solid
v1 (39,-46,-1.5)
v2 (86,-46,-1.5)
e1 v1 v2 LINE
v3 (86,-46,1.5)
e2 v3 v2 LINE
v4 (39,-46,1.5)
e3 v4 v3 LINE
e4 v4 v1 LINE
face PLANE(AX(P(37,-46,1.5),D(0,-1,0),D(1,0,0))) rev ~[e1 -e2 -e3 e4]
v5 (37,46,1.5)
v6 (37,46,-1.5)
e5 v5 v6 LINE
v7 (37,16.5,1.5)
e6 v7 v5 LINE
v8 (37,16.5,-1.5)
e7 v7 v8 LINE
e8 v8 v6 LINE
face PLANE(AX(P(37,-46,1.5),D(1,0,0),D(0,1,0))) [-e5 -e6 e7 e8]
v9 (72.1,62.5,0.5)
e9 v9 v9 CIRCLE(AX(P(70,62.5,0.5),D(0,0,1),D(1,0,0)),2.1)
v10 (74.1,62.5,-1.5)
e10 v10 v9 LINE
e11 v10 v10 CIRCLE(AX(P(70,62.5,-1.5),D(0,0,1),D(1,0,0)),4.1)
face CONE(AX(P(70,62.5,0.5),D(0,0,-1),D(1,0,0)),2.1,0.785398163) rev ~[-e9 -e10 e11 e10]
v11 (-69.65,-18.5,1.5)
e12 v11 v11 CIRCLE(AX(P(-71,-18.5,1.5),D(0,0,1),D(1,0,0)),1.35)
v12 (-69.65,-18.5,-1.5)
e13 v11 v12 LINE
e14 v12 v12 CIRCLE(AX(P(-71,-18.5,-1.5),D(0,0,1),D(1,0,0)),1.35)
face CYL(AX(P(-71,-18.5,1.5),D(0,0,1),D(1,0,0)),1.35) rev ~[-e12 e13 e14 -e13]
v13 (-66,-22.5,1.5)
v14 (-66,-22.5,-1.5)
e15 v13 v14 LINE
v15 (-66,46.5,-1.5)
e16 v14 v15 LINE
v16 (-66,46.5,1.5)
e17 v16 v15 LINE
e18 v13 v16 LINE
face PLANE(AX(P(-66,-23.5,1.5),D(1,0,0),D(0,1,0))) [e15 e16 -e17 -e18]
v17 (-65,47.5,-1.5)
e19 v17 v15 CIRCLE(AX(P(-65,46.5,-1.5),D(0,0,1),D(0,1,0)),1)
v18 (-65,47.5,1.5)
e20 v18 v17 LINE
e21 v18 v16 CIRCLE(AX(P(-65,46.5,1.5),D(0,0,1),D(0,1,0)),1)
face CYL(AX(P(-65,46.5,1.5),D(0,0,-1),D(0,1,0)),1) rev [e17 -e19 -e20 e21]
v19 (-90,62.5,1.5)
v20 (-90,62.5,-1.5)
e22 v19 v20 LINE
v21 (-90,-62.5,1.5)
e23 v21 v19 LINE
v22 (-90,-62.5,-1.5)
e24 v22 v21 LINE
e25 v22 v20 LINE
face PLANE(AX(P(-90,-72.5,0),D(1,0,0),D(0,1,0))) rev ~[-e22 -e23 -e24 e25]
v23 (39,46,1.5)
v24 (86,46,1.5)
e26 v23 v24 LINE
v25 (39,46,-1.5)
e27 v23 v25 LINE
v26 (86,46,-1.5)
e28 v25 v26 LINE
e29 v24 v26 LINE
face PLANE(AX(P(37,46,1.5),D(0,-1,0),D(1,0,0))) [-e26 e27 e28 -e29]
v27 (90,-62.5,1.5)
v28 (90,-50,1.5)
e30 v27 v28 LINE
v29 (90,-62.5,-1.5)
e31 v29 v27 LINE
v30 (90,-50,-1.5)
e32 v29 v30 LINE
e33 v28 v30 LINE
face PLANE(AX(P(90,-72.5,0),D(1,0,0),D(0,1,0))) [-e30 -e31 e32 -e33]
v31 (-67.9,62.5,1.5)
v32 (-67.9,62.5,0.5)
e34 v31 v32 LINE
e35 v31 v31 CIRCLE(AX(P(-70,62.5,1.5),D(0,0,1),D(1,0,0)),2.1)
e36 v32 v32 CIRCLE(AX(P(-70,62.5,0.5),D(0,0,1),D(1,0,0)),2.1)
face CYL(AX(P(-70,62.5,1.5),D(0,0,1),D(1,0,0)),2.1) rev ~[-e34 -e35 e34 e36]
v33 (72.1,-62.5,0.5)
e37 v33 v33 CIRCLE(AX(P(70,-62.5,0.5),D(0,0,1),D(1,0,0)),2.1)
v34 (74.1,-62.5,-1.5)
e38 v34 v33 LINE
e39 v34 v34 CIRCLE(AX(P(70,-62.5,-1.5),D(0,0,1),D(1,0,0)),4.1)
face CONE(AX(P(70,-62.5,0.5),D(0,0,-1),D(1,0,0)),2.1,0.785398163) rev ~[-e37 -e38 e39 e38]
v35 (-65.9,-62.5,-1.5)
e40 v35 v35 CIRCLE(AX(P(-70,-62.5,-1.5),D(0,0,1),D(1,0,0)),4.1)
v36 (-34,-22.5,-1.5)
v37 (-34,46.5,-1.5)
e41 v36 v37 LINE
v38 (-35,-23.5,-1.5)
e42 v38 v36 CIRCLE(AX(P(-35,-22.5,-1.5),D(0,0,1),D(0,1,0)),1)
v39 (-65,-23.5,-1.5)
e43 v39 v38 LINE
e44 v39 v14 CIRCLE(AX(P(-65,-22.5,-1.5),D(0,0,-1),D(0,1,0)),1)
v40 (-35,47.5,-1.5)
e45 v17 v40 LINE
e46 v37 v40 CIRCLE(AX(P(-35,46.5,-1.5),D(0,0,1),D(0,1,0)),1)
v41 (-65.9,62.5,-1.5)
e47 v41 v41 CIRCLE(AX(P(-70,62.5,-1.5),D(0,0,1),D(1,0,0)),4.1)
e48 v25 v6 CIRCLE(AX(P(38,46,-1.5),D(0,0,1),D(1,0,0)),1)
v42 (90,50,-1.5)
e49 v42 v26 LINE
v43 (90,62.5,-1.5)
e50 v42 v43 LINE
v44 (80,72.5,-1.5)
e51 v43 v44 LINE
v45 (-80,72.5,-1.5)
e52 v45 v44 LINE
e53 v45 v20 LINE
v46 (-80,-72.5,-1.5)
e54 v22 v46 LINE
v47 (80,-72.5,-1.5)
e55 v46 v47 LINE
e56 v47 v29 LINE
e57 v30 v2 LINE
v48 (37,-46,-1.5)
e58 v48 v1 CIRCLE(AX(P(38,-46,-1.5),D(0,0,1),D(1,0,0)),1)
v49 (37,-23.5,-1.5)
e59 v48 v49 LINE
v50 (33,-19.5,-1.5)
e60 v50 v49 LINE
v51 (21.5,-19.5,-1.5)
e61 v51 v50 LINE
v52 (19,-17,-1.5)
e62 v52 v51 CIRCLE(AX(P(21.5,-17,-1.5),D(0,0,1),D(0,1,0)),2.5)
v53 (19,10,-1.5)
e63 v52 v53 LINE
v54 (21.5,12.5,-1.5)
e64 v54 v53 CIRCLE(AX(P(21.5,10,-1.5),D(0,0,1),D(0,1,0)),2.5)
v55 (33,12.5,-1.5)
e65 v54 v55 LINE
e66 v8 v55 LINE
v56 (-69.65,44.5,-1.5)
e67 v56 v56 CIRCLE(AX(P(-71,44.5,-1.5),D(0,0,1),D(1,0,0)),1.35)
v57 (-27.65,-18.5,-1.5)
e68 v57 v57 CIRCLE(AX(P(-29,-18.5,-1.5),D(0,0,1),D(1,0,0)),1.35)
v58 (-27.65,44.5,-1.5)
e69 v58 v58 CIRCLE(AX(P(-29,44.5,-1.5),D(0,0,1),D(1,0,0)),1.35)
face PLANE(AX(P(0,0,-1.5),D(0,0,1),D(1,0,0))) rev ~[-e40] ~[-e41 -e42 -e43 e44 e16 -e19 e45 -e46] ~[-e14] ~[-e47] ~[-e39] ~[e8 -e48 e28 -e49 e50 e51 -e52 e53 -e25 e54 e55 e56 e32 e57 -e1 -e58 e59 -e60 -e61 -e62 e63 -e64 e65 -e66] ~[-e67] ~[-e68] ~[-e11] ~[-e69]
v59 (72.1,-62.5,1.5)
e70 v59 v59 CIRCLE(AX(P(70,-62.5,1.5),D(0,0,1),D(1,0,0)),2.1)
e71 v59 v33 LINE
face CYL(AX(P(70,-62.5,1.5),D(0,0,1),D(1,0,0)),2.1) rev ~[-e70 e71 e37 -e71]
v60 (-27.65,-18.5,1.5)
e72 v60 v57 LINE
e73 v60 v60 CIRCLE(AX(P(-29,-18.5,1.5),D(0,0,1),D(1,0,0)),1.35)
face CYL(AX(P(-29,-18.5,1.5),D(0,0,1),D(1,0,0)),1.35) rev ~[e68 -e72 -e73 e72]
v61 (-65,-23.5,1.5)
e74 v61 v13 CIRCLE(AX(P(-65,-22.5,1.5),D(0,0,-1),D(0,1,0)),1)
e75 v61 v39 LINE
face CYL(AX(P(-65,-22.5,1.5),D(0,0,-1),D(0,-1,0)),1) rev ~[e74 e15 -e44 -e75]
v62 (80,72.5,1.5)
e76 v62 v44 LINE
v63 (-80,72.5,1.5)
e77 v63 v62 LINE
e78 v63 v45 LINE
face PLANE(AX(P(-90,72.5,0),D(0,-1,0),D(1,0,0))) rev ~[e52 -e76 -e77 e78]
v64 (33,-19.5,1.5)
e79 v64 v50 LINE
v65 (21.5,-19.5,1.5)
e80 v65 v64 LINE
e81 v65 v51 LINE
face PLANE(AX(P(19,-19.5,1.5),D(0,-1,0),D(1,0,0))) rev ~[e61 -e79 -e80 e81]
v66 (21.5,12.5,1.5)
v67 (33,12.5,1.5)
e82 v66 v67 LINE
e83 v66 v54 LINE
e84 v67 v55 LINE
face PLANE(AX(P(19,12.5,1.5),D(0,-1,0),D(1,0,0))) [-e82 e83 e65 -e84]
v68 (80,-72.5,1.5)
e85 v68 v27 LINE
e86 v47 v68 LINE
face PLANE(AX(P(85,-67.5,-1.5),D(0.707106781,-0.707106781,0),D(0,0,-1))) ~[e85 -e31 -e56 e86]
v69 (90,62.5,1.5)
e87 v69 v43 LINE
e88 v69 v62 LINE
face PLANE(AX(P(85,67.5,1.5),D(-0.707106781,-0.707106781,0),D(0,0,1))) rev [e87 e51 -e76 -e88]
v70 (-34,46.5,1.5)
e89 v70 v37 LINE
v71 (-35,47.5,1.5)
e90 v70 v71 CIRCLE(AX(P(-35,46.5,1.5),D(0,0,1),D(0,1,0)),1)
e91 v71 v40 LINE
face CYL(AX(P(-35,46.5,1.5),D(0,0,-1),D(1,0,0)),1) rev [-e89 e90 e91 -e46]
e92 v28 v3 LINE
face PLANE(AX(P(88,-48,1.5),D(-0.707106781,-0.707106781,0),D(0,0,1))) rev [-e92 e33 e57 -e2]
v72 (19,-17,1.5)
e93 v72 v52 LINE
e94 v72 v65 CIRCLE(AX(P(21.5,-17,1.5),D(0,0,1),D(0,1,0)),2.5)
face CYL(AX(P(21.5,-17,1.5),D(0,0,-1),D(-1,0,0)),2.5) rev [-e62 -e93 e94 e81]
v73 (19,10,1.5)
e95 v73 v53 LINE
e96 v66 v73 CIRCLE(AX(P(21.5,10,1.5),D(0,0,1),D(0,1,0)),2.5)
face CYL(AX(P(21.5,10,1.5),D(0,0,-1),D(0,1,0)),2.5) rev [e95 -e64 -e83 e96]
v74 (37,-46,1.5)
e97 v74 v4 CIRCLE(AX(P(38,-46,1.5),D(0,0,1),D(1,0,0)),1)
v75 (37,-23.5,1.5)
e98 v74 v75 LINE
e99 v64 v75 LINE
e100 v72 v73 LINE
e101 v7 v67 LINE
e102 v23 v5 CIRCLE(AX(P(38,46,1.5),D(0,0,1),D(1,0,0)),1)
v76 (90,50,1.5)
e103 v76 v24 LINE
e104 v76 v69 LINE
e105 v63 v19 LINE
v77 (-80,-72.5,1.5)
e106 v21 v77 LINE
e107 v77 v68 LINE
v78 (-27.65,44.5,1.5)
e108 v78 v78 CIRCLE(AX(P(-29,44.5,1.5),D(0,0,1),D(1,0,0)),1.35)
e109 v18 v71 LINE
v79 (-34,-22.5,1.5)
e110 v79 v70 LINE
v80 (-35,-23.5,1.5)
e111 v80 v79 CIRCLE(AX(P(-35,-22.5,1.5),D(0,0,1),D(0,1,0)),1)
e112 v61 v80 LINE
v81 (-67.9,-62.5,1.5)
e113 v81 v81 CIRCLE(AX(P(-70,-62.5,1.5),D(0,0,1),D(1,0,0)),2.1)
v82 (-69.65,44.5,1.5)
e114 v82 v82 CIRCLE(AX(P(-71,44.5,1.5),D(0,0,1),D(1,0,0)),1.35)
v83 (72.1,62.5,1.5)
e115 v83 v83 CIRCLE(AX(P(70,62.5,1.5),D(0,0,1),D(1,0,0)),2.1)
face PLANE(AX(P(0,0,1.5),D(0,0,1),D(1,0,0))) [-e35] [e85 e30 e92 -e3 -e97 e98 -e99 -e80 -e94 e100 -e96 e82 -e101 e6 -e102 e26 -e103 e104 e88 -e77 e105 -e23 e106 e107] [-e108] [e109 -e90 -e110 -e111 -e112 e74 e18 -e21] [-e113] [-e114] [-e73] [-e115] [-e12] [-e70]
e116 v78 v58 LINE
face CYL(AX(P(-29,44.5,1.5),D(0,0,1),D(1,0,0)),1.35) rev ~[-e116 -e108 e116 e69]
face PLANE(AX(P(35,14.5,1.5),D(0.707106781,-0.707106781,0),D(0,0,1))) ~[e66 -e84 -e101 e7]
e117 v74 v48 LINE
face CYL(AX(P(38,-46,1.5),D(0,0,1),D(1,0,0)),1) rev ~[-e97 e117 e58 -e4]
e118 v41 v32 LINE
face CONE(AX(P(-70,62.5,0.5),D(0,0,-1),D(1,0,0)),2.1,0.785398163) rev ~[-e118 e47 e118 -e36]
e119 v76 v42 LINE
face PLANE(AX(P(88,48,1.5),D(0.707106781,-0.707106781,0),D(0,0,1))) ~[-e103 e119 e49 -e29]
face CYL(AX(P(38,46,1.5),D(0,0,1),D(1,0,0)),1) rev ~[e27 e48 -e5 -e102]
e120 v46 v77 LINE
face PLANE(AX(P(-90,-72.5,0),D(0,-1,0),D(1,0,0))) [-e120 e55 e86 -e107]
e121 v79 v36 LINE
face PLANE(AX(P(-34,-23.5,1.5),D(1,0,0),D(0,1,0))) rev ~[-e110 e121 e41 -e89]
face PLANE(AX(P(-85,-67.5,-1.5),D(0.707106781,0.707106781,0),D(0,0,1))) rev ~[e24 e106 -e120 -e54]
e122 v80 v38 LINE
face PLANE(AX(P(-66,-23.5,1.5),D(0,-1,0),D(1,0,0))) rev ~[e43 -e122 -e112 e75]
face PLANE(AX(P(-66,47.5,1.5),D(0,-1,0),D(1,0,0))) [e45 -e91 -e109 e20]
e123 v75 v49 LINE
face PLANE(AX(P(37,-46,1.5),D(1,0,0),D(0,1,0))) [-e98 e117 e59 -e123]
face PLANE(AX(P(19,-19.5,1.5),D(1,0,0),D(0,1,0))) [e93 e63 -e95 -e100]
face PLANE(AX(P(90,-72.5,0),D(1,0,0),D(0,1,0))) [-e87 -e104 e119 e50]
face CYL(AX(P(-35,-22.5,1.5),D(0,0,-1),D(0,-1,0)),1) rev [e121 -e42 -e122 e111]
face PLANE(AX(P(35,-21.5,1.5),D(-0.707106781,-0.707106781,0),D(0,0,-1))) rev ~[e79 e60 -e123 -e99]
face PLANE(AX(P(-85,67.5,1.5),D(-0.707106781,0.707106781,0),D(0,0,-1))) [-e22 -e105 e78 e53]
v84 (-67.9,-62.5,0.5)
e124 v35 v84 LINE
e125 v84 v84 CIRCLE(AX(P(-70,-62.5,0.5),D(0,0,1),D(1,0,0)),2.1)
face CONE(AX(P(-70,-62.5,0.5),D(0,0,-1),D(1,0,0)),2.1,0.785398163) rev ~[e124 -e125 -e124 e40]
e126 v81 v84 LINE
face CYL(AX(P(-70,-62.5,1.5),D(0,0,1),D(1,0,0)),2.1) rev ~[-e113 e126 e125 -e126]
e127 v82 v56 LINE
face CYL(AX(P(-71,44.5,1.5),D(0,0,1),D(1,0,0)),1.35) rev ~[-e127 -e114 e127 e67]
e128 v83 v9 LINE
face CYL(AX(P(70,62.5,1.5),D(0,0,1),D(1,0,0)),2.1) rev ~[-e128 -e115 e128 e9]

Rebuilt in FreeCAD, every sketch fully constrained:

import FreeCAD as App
import Part
import Sketcher


def edges_at(feature, points):
    """Names of the edges that pass closest to the given points."""
    edges = feature.Shape.Edges
    near = lambda p: min(range(len(edges)), key=lambda i: edges[i].distToShape(Part.Vertex(*p))[0])
    return sorted({f"Edge{near(p) + 1}" for p in points})


def add_polygon(sketch, points):
    """Adds a closed chain of lines whose ends are joined by coincident constraints."""
    first, n = sketch.GeometryCount, len(points)
    for a, b in zip(points, points[1:] + points[:1]):
        sketch.addGeometry(Part.LineSegment(App.Vector(*a, 0), App.Vector(*b, 0)), False)
    for i in range(n):
        sketch.addConstraint(Sketcher.Constraint("Coincident", first + i, 2, first + (i + 1) % n, 1))

doc = App.newDocument("Part")
body = doc.addObject("PartDesign::Body", "Body")

sketch1 = body.newObject("Sketcher::SketchObject", "Sketch")
sketch1.AttachmentSupport = (doc.getObject("XY_Plane"), [""])
sketch1.MapMode = "FlatFace"
add_polygon(sketch1, [(-90, 72), (-90, -72), (90, -72), (90, 72)])
sketch1.addConstraint(Sketcher.Constraint("Vertical", 0))
sketch1.addConstraint(Sketcher.Constraint("Horizontal", 1))
sketch1.addConstraint(Sketcher.Constraint("Vertical", 2))
sketch1.addConstraint(Sketcher.Constraint("Horizontal", 3))
sketch1.addConstraint(Sketcher.Constraint("Symmetric", 0, 2, 2, 2, -1, 1))
sketch1.addConstraint(Sketcher.Constraint("DistanceX", 1, 1, 1, 2, 180.0))
sketch1.addConstraint(Sketcher.Constraint("DistanceY", 0, 2, 0, 1, 145.0))
pad1 = body.newObject("PartDesign::Pad", "Pad")
pad1.Profile = sketch1
pad1.Length = 3
pad1.Midplane = True

sketch2 = body.newObject("Sketcher::SketchObject", "Sketch001")
sketch2.AttachmentSupport = (doc.getObject("XY_Plane"), [""])
sketch2.MapMode = "FlatFace"
sketch2.AttachmentOffset = App.Placement(App.Vector(0, 0, 1.5), App.Rotation())
sketch2.addGeometry(Part.Circle(App.Vector(-70, 62.5, 0), App.Vector(0, 0, 1), 2.1), False)
sketch2.addGeometry(Part.Circle(App.Vector(-70, -62.5, 0), App.Vector(0, 0, 1), 2.1), False)
sketch2.addGeometry(Part.Circle(App.Vector(70, -62.5, 0), App.Vector(0, 0, 1), 2.1), False)
sketch2.addGeometry(Part.Circle(App.Vector(70, 62.5, 0), App.Vector(0, 0, 1), 2.1), False)
add_polygon(sketch2, [(37, 46), (37, -46), (90, -46), (90, 46)])
sketch2.addConstraint(Sketcher.Constraint("Vertical", 4))
sketch2.addConstraint(Sketcher.Constraint("Horizontal", 5))
sketch2.addConstraint(Sketcher.Constraint("Vertical", 6))
sketch2.addConstraint(Sketcher.Constraint("Horizontal", 7))
sketch2.addConstraint(Sketcher.Constraint("Equal", 0, 1))
sketch2.addConstraint(Sketcher.Constraint("Equal", 1, 2))
sketch2.addConstraint(Sketcher.Constraint("Equal", 2, 3))
sketch2.addConstraint(Sketcher.Constraint("Symmetric", 0, 3, 2, 3, -1, 1))
sketch2.addConstraint(Sketcher.Constraint("Symmetric", 1, 3, 3, 3, -1, 1))
sketch2.addConstraint(Sketcher.Constraint("Symmetric", 1, 3, 2, 3, -2))
sketch2.addConstraint(Sketcher.Constraint("Diameter", 0, 4.2))
sketch2.addConstraint(Sketcher.Constraint("DistanceX", 5, 1, 5, 2, 53.0))
sketch2.addConstraint(Sketcher.Constraint("DistanceY", 4, 2, 4, 1, 92.0))
sketch2.addConstraint(Sketcher.Constraint("DistanceX", 0, 3, -1, 1, 70.0))
sketch2.addConstraint(Sketcher.Constraint("DistanceX", -1, 1, 4, 2, 37.0))
sketch2.addConstraint(Sketcher.Constraint("DistanceY", 4, 2, -1, 1, 46.0))
sketch2.addConstraint(Sketcher.Constraint("DistanceY", 1, 3, 0, 3, 125.0))
pocket1 = body.newObject("PartDesign::Pocket", "Pocket")
pocket1.Profile = sketch2
pocket1.Type = "ThroughAll"

sketch3 = body.newObject("Sketcher::SketchObject", "Sketch002")
sketch3.AttachmentSupport = (doc.getObject("XY_Plane"), [""])
sketch3.MapMode = "FlatFace"
sketch3.AttachmentOffset = App.Placement(App.Vector(0, 0, 1.5), App.Rotation())
add_polygon(sketch3, [(19, 12), (19, -20), (37, -20), (37, 12)])
sketch3.addConstraint(Sketcher.Constraint("Vertical", 0))
sketch3.addConstraint(Sketcher.Constraint("Horizontal", 1))
sketch3.addConstraint(Sketcher.Constraint("Vertical", 2))
sketch3.addConstraint(Sketcher.Constraint("Horizontal", 3))
sketch3.addConstraint(Sketcher.Constraint("DistanceX", 1, 1, 1, 2, 18.0))
sketch3.addConstraint(Sketcher.Constraint("DistanceY", 0, 2, 0, 1, 32.0))
sketch3.addConstraint(Sketcher.Constraint("DistanceX", -1, 1, 0, 2, 19.0))
sketch3.addConstraint(Sketcher.Constraint("DistanceY", 0, 2, -1, 1, 19.5))
pocket2 = body.newObject("PartDesign::Pocket", "Pocket001")
pocket2.Profile = sketch3
pocket2.Type = "ThroughAll"

sketch4 = body.newObject("Sketcher::SketchObject", "Sketch003")
sketch4.AttachmentSupport = (doc.getObject("XY_Plane"), [""])
sketch4.MapMode = "FlatFace"
sketch4.AttachmentOffset = App.Placement(App.Vector(0, 0, 1.5), App.Rotation())
sketch4.addGeometry(Part.Circle(App.Vector(38, 46, 0), App.Vector(0, 0, 1), 1), False)
sketch4.addGeometry(Part.Circle(App.Vector(38, -46, 0), App.Vector(0, 0, 1), 1), False)
sketch4.addConstraint(Sketcher.Constraint("Equal", 0, 1))
sketch4.addConstraint(Sketcher.Constraint("Symmetric", 0, 3, 1, 3, -1))
sketch4.addConstraint(Sketcher.Constraint("Diameter", 0, 2.0))
sketch4.addConstraint(Sketcher.Constraint("DistanceX", -1, 1, 0, 3, 38.0))
sketch4.addConstraint(Sketcher.Constraint("DistanceY", -1, 1, 0, 3, 46.0))
pocket3 = body.newObject("PartDesign::Pocket", "Pocket002")
pocket3.Profile = sketch4
pocket3.Type = "ThroughAll"
doc.recompute()

fillet = body.newObject("PartDesign::Fillet", "Fillet")
fillet.Base = (pocket3, edges_at(pocket3, [(19, -19.5, 0), (19, 12.5, 0)]))
fillet.Radius = 2.5
doc.recompute()

chamfer = body.newObject("PartDesign::Chamfer", "Chamfer")
chamfer.Base = (fillet, edges_at(fillet, [
    (67.9, 62.5, -1.5),
    (67.9, -62.5, -1.5),
    (-72.1, -62.5, -1.5),
    (-72.1, 62.5, -1.5),
]))
chamfer.Size = 2
doc.recompute()

chamfer2 = body.newObject("PartDesign::Chamfer", "Chamfer001")
chamfer2.Base = (chamfer, edges_at(chamfer, [
    (-90, 72.5, 0),
    (90, 72.5, 0),
    (90, -72.5, 0),
    (-90, -72.5, 0),
]))
chamfer2.Size = 10
doc.recompute()

chamfer3 = body.newObject("PartDesign::Chamfer", "Chamfer002")
chamfer3.Base = (chamfer2, edges_at(chamfer2, [
    (90, 46, 0),
    (90, -46, 0),
    (37, 12.5, 0),
    (37, -19.5, 0),
]))
chamfer3.Size = 4

sketch5 = body.newObject("Sketcher::SketchObject", "Sketch004")
sketch5.AttachmentSupport = (doc.getObject("XY_Plane"), [""])
sketch5.MapMode = "FlatFace"
sketch5.AttachmentOffset = App.Placement(App.Vector(0, 0, 1.5), App.Rotation())
sketch5.addGeometry(Part.Circle(App.Vector(-71, 44.5, 0), App.Vector(0, 0, 1), 1.4), False)
sketch5.addGeometry(Part.Circle(App.Vector(-29, 44.5, 0), App.Vector(0, 0, 1), 1.4), False)
sketch5.addGeometry(Part.Circle(App.Vector(-71, -18.5, 0), App.Vector(0, 0, 1), 1.4), False)
sketch5.addGeometry(Part.Circle(App.Vector(-29, -18.5, 0), App.Vector(0, 0, 1), 1.4), False)
add_polygon(sketch5, [(-66, 47.5), (-66, -23.5), (-34, -23.5), (-34, 47.5)])
sketch5.addConstraint(Sketcher.Constraint("Vertical", 4))
sketch5.addConstraint(Sketcher.Constraint("Horizontal", 5))
sketch5.addConstraint(Sketcher.Constraint("Vertical", 6))
sketch5.addConstraint(Sketcher.Constraint("Horizontal", 7))
sketch5.addConstraint(Sketcher.Constraint("Equal", 0, 1))
sketch5.addConstraint(Sketcher.Constraint("Equal", 1, 2))
sketch5.addConstraint(Sketcher.Constraint("Equal", 2, 3))
sketch5.addConstraint(Sketcher.Constraint("Horizontal", 0, 3, 1, 3))
sketch5.addConstraint(Sketcher.Constraint("Horizontal", 2, 3, 3, 3))
sketch5.addConstraint(Sketcher.Constraint("Vertical", 0, 3, 2, 3))
sketch5.addConstraint(Sketcher.Constraint("Vertical", 1, 3, 3, 3))
sketch5.addConstraint(Sketcher.Constraint("Diameter", 0, 2.7))
sketch5.addConstraint(Sketcher.Constraint("DistanceX", 5, 1, 5, 2, 32.0))
sketch5.addConstraint(Sketcher.Constraint("DistanceY", 4, 2, 4, 1, 71.0))
sketch5.addConstraint(Sketcher.Constraint("DistanceX", 0, 3, -1, 1, 71.0))
sketch5.addConstraint(Sketcher.Constraint("DistanceX", 1, 3, -1, 1, 29.0))
sketch5.addConstraint(Sketcher.Constraint("DistanceX", 4, 2, -1, 1, 66.0))
sketch5.addConstraint(Sketcher.Constraint("DistanceY", 2, 3, 0, 3, 63.0))
sketch5.addConstraint(Sketcher.Constraint("DistanceY", 4, 2, 2, 3, 5.0))
sketch5.addConstraint(Sketcher.Constraint("DistanceY", -1, 1, 0, 3, 44.5))
pocket4 = body.newObject("PartDesign::Pocket", "Pocket003")
pocket4.Profile = sketch5
pocket4.Type = "ThroughAll"
doc.recompute()

fillet2 = body.newObject("PartDesign::Fillet", "Fillet001")
fillet2.Base = (pocket4, edges_at(pocket4, [
    (-66, -23.5, 0),
    (-66, 47.5, 0),
    (-34, 47.5, 0),
    (-34, -23.5, 0),
]))
fillet2.Radius = 1

doc.recompute()
